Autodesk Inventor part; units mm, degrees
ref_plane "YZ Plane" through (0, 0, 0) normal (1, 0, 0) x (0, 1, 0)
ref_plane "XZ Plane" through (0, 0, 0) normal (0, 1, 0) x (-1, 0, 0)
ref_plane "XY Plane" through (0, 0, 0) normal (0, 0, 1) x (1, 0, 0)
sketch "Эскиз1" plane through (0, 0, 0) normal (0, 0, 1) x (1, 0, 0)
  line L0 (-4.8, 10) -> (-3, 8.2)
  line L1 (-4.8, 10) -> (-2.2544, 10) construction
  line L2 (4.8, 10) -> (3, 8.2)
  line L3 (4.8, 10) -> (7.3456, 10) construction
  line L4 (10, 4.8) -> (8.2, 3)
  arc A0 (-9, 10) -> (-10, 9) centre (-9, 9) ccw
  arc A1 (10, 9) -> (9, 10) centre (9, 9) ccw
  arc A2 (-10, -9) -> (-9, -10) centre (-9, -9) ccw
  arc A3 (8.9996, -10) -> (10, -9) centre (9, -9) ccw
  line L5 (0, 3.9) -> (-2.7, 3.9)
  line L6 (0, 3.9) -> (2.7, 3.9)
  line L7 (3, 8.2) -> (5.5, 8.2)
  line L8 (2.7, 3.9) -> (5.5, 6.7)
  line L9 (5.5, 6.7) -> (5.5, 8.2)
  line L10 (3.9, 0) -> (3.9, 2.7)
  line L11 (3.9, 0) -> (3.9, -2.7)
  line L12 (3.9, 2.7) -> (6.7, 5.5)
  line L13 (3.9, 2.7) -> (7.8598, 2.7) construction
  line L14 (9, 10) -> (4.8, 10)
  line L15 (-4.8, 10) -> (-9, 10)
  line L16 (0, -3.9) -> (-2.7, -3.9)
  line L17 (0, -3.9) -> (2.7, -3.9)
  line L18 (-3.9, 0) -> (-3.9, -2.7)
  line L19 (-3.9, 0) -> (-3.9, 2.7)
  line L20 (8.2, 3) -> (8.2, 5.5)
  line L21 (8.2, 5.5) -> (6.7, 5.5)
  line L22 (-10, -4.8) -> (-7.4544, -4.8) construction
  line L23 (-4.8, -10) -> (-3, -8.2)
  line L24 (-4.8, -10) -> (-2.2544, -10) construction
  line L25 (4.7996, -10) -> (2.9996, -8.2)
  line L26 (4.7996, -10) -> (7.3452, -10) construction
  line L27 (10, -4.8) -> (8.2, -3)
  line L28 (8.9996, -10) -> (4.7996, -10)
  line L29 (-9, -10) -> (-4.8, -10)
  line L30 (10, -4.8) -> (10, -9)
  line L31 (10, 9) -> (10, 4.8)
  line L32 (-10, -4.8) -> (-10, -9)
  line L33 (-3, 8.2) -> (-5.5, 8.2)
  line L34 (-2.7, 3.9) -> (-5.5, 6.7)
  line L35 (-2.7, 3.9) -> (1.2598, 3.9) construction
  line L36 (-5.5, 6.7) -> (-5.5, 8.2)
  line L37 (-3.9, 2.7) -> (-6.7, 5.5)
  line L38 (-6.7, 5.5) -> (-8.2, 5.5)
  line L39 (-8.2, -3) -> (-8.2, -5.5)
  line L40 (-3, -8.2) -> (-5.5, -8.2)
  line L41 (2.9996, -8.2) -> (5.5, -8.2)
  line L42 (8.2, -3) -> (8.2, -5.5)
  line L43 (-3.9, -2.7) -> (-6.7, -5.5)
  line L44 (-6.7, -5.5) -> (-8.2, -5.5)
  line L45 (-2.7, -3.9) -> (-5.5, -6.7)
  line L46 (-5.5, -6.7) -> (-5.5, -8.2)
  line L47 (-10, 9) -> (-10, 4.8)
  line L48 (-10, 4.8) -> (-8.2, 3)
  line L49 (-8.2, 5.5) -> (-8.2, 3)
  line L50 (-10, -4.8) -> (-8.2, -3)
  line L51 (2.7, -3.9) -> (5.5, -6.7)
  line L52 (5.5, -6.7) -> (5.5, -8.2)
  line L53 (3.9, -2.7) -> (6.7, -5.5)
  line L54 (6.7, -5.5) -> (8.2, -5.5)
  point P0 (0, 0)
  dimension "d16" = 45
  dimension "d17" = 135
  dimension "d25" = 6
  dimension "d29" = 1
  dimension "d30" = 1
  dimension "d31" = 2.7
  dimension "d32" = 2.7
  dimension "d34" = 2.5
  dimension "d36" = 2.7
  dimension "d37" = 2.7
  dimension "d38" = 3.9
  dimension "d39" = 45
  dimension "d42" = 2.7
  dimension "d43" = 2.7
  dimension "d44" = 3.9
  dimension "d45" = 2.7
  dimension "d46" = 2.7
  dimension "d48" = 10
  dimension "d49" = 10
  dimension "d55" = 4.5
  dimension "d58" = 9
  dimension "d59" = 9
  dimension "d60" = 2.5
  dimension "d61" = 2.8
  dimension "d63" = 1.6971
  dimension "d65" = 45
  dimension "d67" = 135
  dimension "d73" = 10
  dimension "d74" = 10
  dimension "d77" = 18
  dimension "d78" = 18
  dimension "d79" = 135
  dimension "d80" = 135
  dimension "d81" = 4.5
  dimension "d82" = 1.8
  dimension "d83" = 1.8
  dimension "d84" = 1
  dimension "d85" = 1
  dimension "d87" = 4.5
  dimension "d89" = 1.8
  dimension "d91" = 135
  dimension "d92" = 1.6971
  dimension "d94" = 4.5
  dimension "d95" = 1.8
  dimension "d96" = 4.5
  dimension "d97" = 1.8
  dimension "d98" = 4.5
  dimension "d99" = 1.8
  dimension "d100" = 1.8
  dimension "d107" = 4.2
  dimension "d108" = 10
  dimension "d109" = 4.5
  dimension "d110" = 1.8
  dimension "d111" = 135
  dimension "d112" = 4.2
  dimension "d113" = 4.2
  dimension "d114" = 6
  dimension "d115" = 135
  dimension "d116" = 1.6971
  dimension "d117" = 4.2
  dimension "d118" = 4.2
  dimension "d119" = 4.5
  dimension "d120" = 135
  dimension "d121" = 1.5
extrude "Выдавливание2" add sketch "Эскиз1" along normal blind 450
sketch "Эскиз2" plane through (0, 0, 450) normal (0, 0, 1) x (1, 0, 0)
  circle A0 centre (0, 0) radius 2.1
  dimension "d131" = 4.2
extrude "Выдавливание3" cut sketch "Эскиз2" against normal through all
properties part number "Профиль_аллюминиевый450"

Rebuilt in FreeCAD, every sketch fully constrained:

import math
import FreeCAD as App
import Part
import Sketcher
Q = App.Units.Quantity

doc = App.newDocument("Part")
params = doc.addObject("Spreadsheet::Sheet", "Params")
for row, (alias, value) in enumerate([
    ("sketch1_radius", "1 mm"),
    ("sketch1_width", "4.2 mm"),
    ("sketch1_width2", "1.5 mm"),
    ("sketch1_width3", "2.5 mm"),
    ("pad1_length", "450 mm"),
    ("sketch2_diameter", "4.2 mm"),
], start=1):
    params.set(f"A{row}", alias)
    params.set(f"B{row}", "=" + value)
    params.setAlias(f"B{row}", alias)

body = doc.addObject("PartDesign::Body", "Body")

sketch1 = doc.addObject("Sketcher::SketchObject", "Sketch")
body.addObject(sketch1)
sketch1.AttachmentSupport = (doc.XY_Plane, [""])
sketch1.MapMode = "FlatFace"
sketch1.addGeometry(Part.LineSegment(App.Vector(-3, 8.2, 0), App.Vector(-4.8, 10, 0)), False)
sketch1.addGeometry(Part.LineSegment(App.Vector(-4.8, 10, 0), App.Vector(-9, 10, 0)), False)
sketch1.addGeometry(Part.ArcOfCircle(Part.Circle(App.Vector(-9, 9, 0), App.Vector(0, 0, 1), 1), math.radians(90), math.radians(180)), False)
sketch1.addGeometry(Part.LineSegment(App.Vector(-10, 9, 0), App.Vector(-10, 4.8, 0)), False)
sketch1.addGeometry(Part.LineSegment(App.Vector(-10, 4.8, 0), App.Vector(-8.2, 3, 0)), False)
sketch1.addGeometry(Part.LineSegment(App.Vector(-8.2, 3, 0), App.Vector(-8.2, 5.5, 0)), False)
sketch1.addGeometry(Part.LineSegment(App.Vector(-8.2, 5.5, 0), App.Vector(-6.7, 5.5, 0)), False)
sketch1.addGeometry(Part.LineSegment(App.Vector(-6.7, 5.5, 0), App.Vector(-3.9, 2.7, 0)), False)
sketch1.addGeometry(Part.LineSegment(App.Vector(-3.9, 2.7, 0), App.Vector(-3.9, -2.7, 0)), False)
sketch1.addGeometry(Part.LineSegment(App.Vector(-3.9, -2.7, 0), App.Vector(-6.7, -5.5, 0)), False)
sketch1.addGeometry(Part.LineSegment(App.Vector(-6.7, -5.5, 0), App.Vector(-8.2, -5.5, 0)), False)
sketch1.addGeometry(Part.LineSegment(App.Vector(-8.2, -5.5, 0), App.Vector(-8.2, -3, 0)), False)
sketch1.addGeometry(Part.LineSegment(App.Vector(-8.2, -3, 0), App.Vector(-10, -4.8, 0)), False)
sketch1.addGeometry(Part.LineSegment(App.Vector(-10, -4.8, 0), App.Vector(-10, -9, 0)), False)
sketch1.addGeometry(Part.ArcOfCircle(Part.Circle(App.Vector(-9, -9, 0), App.Vector(0, 0, 1), 1), math.radians(180), math.radians(270)), False)
sketch1.addGeometry(Part.LineSegment(App.Vector(-9, -10, 0), App.Vector(-4.8, -10, 0)), False)
sketch1.addGeometry(Part.LineSegment(App.Vector(-4.8, -10, 0), App.Vector(-3, -8.2, 0)), False)
sketch1.addGeometry(Part.LineSegment(App.Vector(-3, -8.2, 0), App.Vector(-5.5, -8.2, 0)), False)
sketch1.addGeometry(Part.LineSegment(App.Vector(-5.5, -8.2, 0), App.Vector(-5.5, -6.7, 0)), False)
sketch1.addGeometry(Part.LineSegment(App.Vector(-5.5, -6.7, 0), App.Vector(-2.7, -3.9, 0)), False)
sketch1.addGeometry(Part.LineSegment(App.Vector(-2.7, -3.9, 0), App.Vector(2.7, -3.9, 0)), False)
sketch1.addGeometry(Part.LineSegment(App.Vector(2.7, -3.9, 0), App.Vector(5.5, -6.7, 0)), False)
sketch1.addGeometry(Part.LineSegment(App.Vector(5.5, -6.7, 0), App.Vector(5.5, -8.2, 0)), False)
sketch1.addGeometry(Part.LineSegment(App.Vector(5.5, -8.2, 0), App.Vector(2.9996, -8.2, 0)), False)
sketch1.addGeometry(Part.LineSegment(App.Vector(2.9996, -8.2, 0), App.Vector(4.7996, -10, 0)), False)
sketch1.addGeometry(Part.LineSegment(App.Vector(4.7996, -10, 0), App.Vector(8.9996, -10, 0)), False)
sketch1.addGeometry(Part.ArcOfCircle(Part.Circle(App.Vector(9, -9, 0), App.Vector(0, 0, 1), 1), math.radians(-90.022918), math.radians(0)), False)
sketch1.addGeometry(Part.LineSegment(App.Vector(10, -9, 0), App.Vector(10, -4.8, 0)), False)
sketch1.addGeometry(Part.LineSegment(App.Vector(10, -4.8, 0), App.Vector(8.2, -3, 0)), False)
sketch1.addGeometry(Part.LineSegment(App.Vector(8.2, -3, 0), App.Vector(8.2, -5.5, 0)), False)
sketch1.addGeometry(Part.LineSegment(App.Vector(8.2, -5.5, 0), App.Vector(6.7, -5.5, 0)), False)
sketch1.addGeometry(Part.LineSegment(App.Vector(6.7, -5.5, 0), App.Vector(3.9, -2.7, 0)), False)
sketch1.addGeometry(Part.LineSegment(App.Vector(3.9, -2.7, 0), App.Vector(3.9, 2.7, 0)), False)
sketch1.addGeometry(Part.LineSegment(App.Vector(3.9, 2.7, 0), App.Vector(6.7, 5.5, 0)), False)
sketch1.addGeometry(Part.LineSegment(App.Vector(6.7, 5.5, 0), App.Vector(8.2, 5.5, 0)), False)
sketch1.addGeometry(Part.LineSegment(App.Vector(8.2, 5.5, 0), App.Vector(8.2, 3, 0)), False)
sketch1.addGeometry(Part.LineSegment(App.Vector(8.2, 3, 0), App.Vector(10, 4.8, 0)), False)
sketch1.addGeometry(Part.LineSegment(App.Vector(10, 4.8, 0), App.Vector(10, 9, 0)), False)
sketch1.addGeometry(Part.ArcOfCircle(Part.Circle(App.Vector(9, 9, 0), App.Vector(0, 0, 1), 1), math.radians(0), math.radians(90)), False)
sketch1.addGeometry(Part.LineSegment(App.Vector(9, 10, 0), App.Vector(4.8, 10, 0)), False)
sketch1.addGeometry(Part.LineSegment(App.Vector(4.8, 10, 0), App.Vector(3, 8.2, 0)), False)
sketch1.addGeometry(Part.LineSegment(App.Vector(3, 8.2, 0), App.Vector(5.5, 8.2, 0)), False)
sketch1.addGeometry(Part.LineSegment(App.Vector(5.5, 8.2, 0), App.Vector(5.5, 6.7, 0)), False)
sketch1.addGeometry(Part.LineSegment(App.Vector(5.5, 6.7, 0), App.Vector(2.7, 3.9, 0)), False)
sketch1.addGeometry(Part.LineSegment(App.Vector(2.7, 3.9, 0), App.Vector(-2.7, 3.9, 0)), False)
sketch1.addGeometry(Part.LineSegment(App.Vector(-2.7, 3.9, 0), App.Vector(-5.5, 6.7, 0)), False)
sketch1.addGeometry(Part.LineSegment(App.Vector(-5.5, 6.7, 0), App.Vector(-5.5, 8.2, 0)), False)
sketch1.addGeometry(Part.LineSegment(App.Vector(-5.5, 8.2, 0), App.Vector(-3, 8.2, 0)), False)
sketch1.addConstraint(Sketcher.Constraint("Coincident", 0, 2, 1, 1))
sketch1.addConstraint(Sketcher.Constraint("Tangent", 1, 2, 2, 1))
sketch1.addConstraint(Sketcher.Constraint("Tangent", 2, 2, 3, 1))
sketch1.addConstraint(Sketcher.Constraint("Coincident", 3, 2, 4, 1))
sketch1.addConstraint(Sketcher.Constraint("Coincident", 4, 2, 5, 1))
sketch1.addConstraint(Sketcher.Constraint("Coincident", 5, 2, 6, 1))
sketch1.addConstraint(Sketcher.Constraint("Coincident", 6, 2, 7, 1))
sketch1.addConstraint(Sketcher.Constraint("Coincident", 7, 2, 8, 1))
sketch1.addConstraint(Sketcher.Constraint("Coincident", 8, 2, 9, 1))
sketch1.addConstraint(Sketcher.Constraint("Coincident", 9, 2, 10, 1))
sketch1.addConstraint(Sketcher.Constraint("Coincident", 10, 2, 11, 1))
sketch1.addConstraint(Sketcher.Constraint("Coincident", 11, 2, 12, 1))
sketch1.addConstraint(Sketcher.Constraint("Coincident", 12, 2, 13, 1))
sketch1.addConstraint(Sketcher.Constraint("Tangent", 13, 2, 14, 1))
sketch1.addConstraint(Sketcher.Constraint("Tangent", 14, 2, 15, 1))
sketch1.addConstraint(Sketcher.Constraint("Coincident", 15, 2, 16, 1))
sketch1.addConstraint(Sketcher.Constraint("Coincident", 16, 2, 17, 1))
sketch1.addConstraint(Sketcher.Constraint("Coincident", 17, 2, 18, 1))
sketch1.addConstraint(Sketcher.Constraint("Coincident", 18, 2, 19, 1))
sketch1.addConstraint(Sketcher.Constraint("Coincident", 19, 2, 20, 1))
sketch1.addConstraint(Sketcher.Constraint("Coincident", 20, 2, 21, 1))
sketch1.addConstraint(Sketcher.Constraint("Coincident", 21, 2, 22, 1))
sketch1.addConstraint(Sketcher.Constraint("Coincident", 22, 2, 23, 1))
sketch1.addConstraint(Sketcher.Constraint("Coincident", 23, 2, 24, 1))
sketch1.addConstraint(Sketcher.Constraint("Coincident", 24, 2, 25, 1))
sketch1.addConstraint(Sketcher.Constraint("Tangent", 25, 2, 26, 1))
sketch1.addConstraint(Sketcher.Constraint("Tangent", 26, 2, 27, 1))
sketch1.addConstraint(Sketcher.Constraint("Coincident", 27, 2, 28, 1))
sketch1.addConstraint(Sketcher.Constraint("Coincident", 28, 2, 29, 1))
sketch1.addConstraint(Sketcher.Constraint("Coincident", 29, 2, 30, 1))
sketch1.addConstraint(Sketcher.Constraint("Coincident", 30, 2, 31, 1))
sketch1.addConstraint(Sketcher.Constraint("Coincident", 31, 2, 32, 1))
sketch1.addConstraint(Sketcher.Constraint("Coincident", 32, 2, 33, 1))
sketch1.addConstraint(Sketcher.Constraint("Coincident", 33, 2, 34, 1))
sketch1.addConstraint(Sketcher.Constraint("Coincident", 34, 2, 35, 1))
sketch1.addConstraint(Sketcher.Constraint("Coincident", 35, 2, 36, 1))
sketch1.addConstraint(Sketcher.Constraint("Coincident", 36, 2, 37, 1))
sketch1.addConstraint(Sketcher.Constraint("Tangent", 37, 2, 38, 1))
sketch1.addConstraint(Sketcher.Constraint("Tangent", 38, 2, 39, 1))
sketch1.addConstraint(Sketcher.Constraint("Coincident", 39, 2, 40, 1))
sketch1.addConstraint(Sketcher.Constraint("Coincident", 40, 2, 41, 1))
sketch1.addConstraint(Sketcher.Constraint("Coincident", 41, 2, 42, 1))
sketch1.addConstraint(Sketcher.Constraint("Coincident", 42, 2, 43, 1))
sketch1.addConstraint(Sketcher.Constraint("Coincident", 43, 2, 44, 1))
sketch1.addConstraint(Sketcher.Constraint("Coincident", 44, 2, 45, 1))
sketch1.addConstraint(Sketcher.Constraint("Coincident", 45, 2, 46, 1))
sketch1.addConstraint(Sketcher.Constraint("Coincident", 46, 2, 47, 1))
sketch1.addConstraint(Sketcher.Constraint("Coincident", 47, 2, 0, 1))
sketch1.addConstraint(Sketcher.Constraint("Horizontal", 1))
sketch1.addConstraint(Sketcher.Constraint("Vertical", 3))
sketch1.addConstraint(Sketcher.Constraint("Vertical", 5))
sketch1.addConstraint(Sketcher.Constraint("Horizontal", 6))
sketch1.addConstraint(Sketcher.Constraint("Vertical", 8))
sketch1.addConstraint(Sketcher.Constraint("Horizontal", 10))
sketch1.addConstraint(Sketcher.Constraint("Vertical", 11))
sketch1.addConstraint(Sketcher.Constraint("Vertical", 13))
sketch1.addConstraint(Sketcher.Constraint("Horizontal", 15))
sketch1.addConstraint(Sketcher.Constraint("Horizontal", 17))
sketch1.addConstraint(Sketcher.Constraint("Vertical", 18))
sketch1.addConstraint(Sketcher.Constraint("Horizontal", 20))
sketch1.addConstraint(Sketcher.Constraint("Vertical", 22))
sketch1.addConstraint(Sketcher.Constraint("Horizontal", 23))
sketch1.addConstraint(Sketcher.Constraint("Horizontal", 25))
sketch1.addConstraint(Sketcher.Constraint("Vertical", 27))
sketch1.addConstraint(Sketcher.Constraint("Vertical", 29))
sketch1.addConstraint(Sketcher.Constraint("Horizontal", 30))
sketch1.addConstraint(Sketcher.Constraint("Vertical", 32))
sketch1.addConstraint(Sketcher.Constraint("Horizontal", 34))
sketch1.addConstraint(Sketcher.Constraint("Vertical", 35))
sketch1.addConstraint(Sketcher.Constraint("Vertical", 37))
sketch1.addConstraint(Sketcher.Constraint("Horizontal", 39))
sketch1.addConstraint(Sketcher.Constraint("Horizontal", 41))
sketch1.addConstraint(Sketcher.Constraint("Vertical", 42))
sketch1.addConstraint(Sketcher.Constraint("Horizontal", 44))
sketch1.addConstraint(Sketcher.Constraint("Vertical", 46))
sketch1.addConstraint(Sketcher.Constraint("Horizontal", 47))
sketch1.addConstraint(Sketcher.Constraint("Equal", 2, 14))
sketch1.addConstraint(Sketcher.Constraint("Equal", 14, 26))
sketch1.addConstraint(Sketcher.Constraint("Equal", 26, 38))
sketch1.addConstraint(Sketcher.Constraint("Symmetric", 2, 3, 26, 3, -1, 1))
sketch1.addConstraint(Sketcher.Constraint("Symmetric", 14, 3, 38, 3, -1, 1))
sketch1.addConstraint(Sketcher.Constraint("Symmetric", 4, 2, 28, 2, -1, 1))
sketch1.addConstraint(Sketcher.Constraint("Symmetric", 6, 2, 30, 2, -1, 1))
sketch1.addConstraint(Sketcher.Constraint("Symmetric", 7, 2, 31, 2, -1, 1))
sketch1.addConstraint(Sketcher.Constraint("Symmetric", 9, 2, 33, 2, -1, 1))
sketch1.addConstraint(Sketcher.Constraint("Symmetric", 11, 2, 35, 2, -1, 1))
sketch1.addConstraint(Sketcher.Constraint("Symmetric", 16, 2, 40, 2, -1, 1))
sketch1.addConstraint(Sketcher.Constraint("Symmetric", 18, 2, 42, 2, -1, 1))
sketch1.addConstraint(Sketcher.Constraint("Symmetric", 19, 2, 43, 2, -1, 1))
sketch1.addConstraint(Sketcher.Constraint("Symmetric", 21, 2, 45, 2, -1, 1))
sketch1.addConstraint(Sketcher.Constraint("Symmetric", 23, 2, 47, 2, -1, 1))
sketch1.addConstraint(Sketcher.Constraint("Symmetric", 14, 3, 26, 3, -2))
sketch1.addConstraint(Sketcher.Constraint("Symmetric", 18, 2, 21, 2, -2))
sketch1.addConstraint(Sketcher.Constraint("Symmetric", 16, 2, 23, 2, -2))
sketch1.addConstraint(Sketcher.Constraint("Symmetric", 11, 2, 28, 2, -2))
sketch1.addConstraint(Sketcher.Constraint("Symmetric", 9, 2, 30, 2, -2))
sketch1.addConstraint(Sketcher.Constraint("Parallel", 0, 4))
sketch1.addConstraint(Sketcher.Constraint("Parallel", 4, 7))
sketch1.addConstraint(Sketcher.Constraint("Perpendicular", 7, 9))
sketch1.addConstraint(Sketcher.Constraint("Parallel", 9, 12))
sketch1.addConstraint(Sketcher.Constraint("Parallel", 12, 16))
sketch1.addConstraint(Sketcher.Constraint("Parallel", 16, 19))
sketch1.addConstraint(Sketcher.Constraint("Perpendicular", 19, 21))
sketch1.addConstraint(Sketcher.Constraint("Parallel", 21, 24))
sketch1.addConstraint(Sketcher.Constraint("Parallel", 24, 28))
sketch1.addConstraint(Sketcher.Constraint("Perpendicular", 31, 33))
sketch1.addConstraint(Sketcher.Constraint("Parallel", 33, 36))
sketch1.addConstraint(Sketcher.Constraint("Parallel", 36, 40))
sketch1.addConstraint(Sketcher.Constraint("Perpendicular", 43, 45))
sketch1.addConstraint(Sketcher.Constraint("Horizontal", 12, 2, 27, 2))
sketch1.addConstraint(Sketcher.Constraint("Equal", 39, 3))
sketch1.addConstraint(Sketcher.Constraint("Equal", 47, 5))
sketch1.addConstraint(Sketcher.Constraint("Equal", 44, 8))
sketch1.addConstraint(Sketcher.Constraint("Equal", 34, 18))
sketch1.addConstraint(Sketcher.Constraint("Equal", 0, 4))
sketch1.addConstraint(Sketcher.Constraint("Equal", 9, 19))
sketch1.addConstraint(Sketcher.Constraint("Radius", 2, Q("1 mm")))
sketch1.addConstraint(Sketcher.Constraint("DistanceX", 1, 2, 1, 1, Q("4.2 mm")))
sketch1.addConstraint(Sketcher.Constraint("DistanceX", 6, 1, 6, 2, Q("1.5 mm")))
sketch1.addConstraint(Sketcher.Constraint("DistanceX", 17, 2, 17, 1, Q("2.5 mm")))
sketch1.addConstraint(Sketcher.Constraint("DistanceX", 2, 3, -1, 1, Q("9 mm")))
sketch1.addConstraint(Sketcher.Constraint("DistanceY", 4, 2, 2, 3, Q("6 mm")))
sketch1.addConstraint(Sketcher.Constraint("DistanceX", 7, 2, -1, 1, Q("3.9 mm")))
sketch1.setExpression("Constraints[116]", "Params.sketch1_radius")
sketch1.setExpression("Constraints[117]", "Params.sketch1_width")
sketch1.setExpression("Constraints[118]", "Params.sketch1_width2")
sketch1.setExpression("Constraints[119]", "Params.sketch1_width3")
pad1 = doc.addObject("PartDesign::Pad", "Pad")
body.addObject(pad1)
pad1.Profile = sketch1
pad1.setExpression("Length", "Params.pad1_length")

sketch2 = doc.addObject("Sketcher::SketchObject", "Sketch001")
body.addObject(sketch2)
sketch2.AttachmentSupport = (doc.XY_Plane, [""])
sketch2.MapMode = "FlatFace"
sketch2.AttachmentOffset = App.Placement(App.Vector(0, 0, 450), App.Rotation())
sketch2.addGeometry(Part.Circle(App.Vector(0, 0, 0), App.Vector(0, 0, 1), 2.1), False)
sketch2.addConstraint(Sketcher.Constraint("Coincident", 0, 3, -1, 1))
sketch2.addConstraint(Sketcher.Constraint("Diameter", 0, Q("4.2 mm")))
sketch2.setExpression("Constraints[1]", "Params.sketch2_diameter")
pocket1 = doc.addObject("PartDesign::Pocket", "Pocket")
body.addObject(pocket1)
pocket1.Profile = sketch2
pocket1.Type = "ThroughAll"

doc.recompute()
